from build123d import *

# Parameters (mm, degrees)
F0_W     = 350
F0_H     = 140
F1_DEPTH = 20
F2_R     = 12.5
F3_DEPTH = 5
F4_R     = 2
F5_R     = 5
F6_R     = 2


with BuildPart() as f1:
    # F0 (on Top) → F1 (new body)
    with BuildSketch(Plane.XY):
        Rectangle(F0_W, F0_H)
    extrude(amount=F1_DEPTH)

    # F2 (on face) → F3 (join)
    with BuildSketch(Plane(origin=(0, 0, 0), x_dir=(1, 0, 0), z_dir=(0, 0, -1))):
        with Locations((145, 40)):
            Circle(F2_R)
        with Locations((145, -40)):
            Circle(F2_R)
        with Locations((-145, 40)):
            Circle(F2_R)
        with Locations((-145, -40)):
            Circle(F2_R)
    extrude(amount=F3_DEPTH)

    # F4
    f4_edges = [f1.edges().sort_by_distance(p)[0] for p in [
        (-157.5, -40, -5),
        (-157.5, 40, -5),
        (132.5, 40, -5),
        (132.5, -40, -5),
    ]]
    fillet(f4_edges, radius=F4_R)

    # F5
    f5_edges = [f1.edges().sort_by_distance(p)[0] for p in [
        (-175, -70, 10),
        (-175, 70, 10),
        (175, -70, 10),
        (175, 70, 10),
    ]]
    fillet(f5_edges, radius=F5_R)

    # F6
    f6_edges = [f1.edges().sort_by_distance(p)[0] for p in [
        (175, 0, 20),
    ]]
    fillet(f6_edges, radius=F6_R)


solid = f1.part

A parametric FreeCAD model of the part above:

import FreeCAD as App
import Part
import Sketcher


def edges_at(feature, points):
    """Names of the edges that pass closest to the given points."""
    edges = feature.Shape.Edges
    near = lambda p: min(range(len(edges)), key=lambda i: edges[i].distToShape(Part.Vertex(*p))[0])
    return sorted({f"Edge{near(p) + 1}" for p in points})


def add_polygon(sketch, points):
    """Adds a closed chain of lines whose ends are joined by coincident constraints."""
    first, n = sketch.GeometryCount, len(points)
    for a, b in zip(points, points[1:] + points[:1]):
        sketch.addGeometry(Part.LineSegment(App.Vector(*a, 0), App.Vector(*b, 0)), False)
    for i in range(n):
        sketch.addConstraint(Sketcher.Constraint("Coincident", first + i, 2, first + (i + 1) % n, 1))

doc = App.newDocument("Part")
params = doc.addObject("Spreadsheet::Sheet", "Params")
for row, (alias, value) in enumerate([
    ("sketch1_width", "350 mm"),
    ("sketch1_height", "140 mm"),
    ("pad1_length", "20 mm"),
    ("sketch2_diameter", "25 mm"),
    ("pad2_length", "5 mm"),
    ("fillet_radius", "2 mm"),
    ("fillet2_radius", "5 mm"),
    ("fillet3_radius", "2 mm"),
], start=1):
    params.set(f"A{row}", alias)
    params.set(f"B{row}", "=" + value)
    params.setAlias(f"B{row}", alias)

body = doc.addObject("PartDesign::Body", "Body")

# Sketch on XY plane
sketch1 = body.newObject("Sketcher::SketchObject", "Sketch")
sketch1.AttachmentSupport = (doc.getObject("XY_Plane"), [""])
sketch1.MapMode = "FlatFace"
add_polygon(sketch1, [(-175, 70), (-175, -70), (175, -70), (175, 70)])  # lines 0-3
sketch1.addConstraint(Sketcher.Constraint("Vertical", 0))
sketch1.addConstraint(Sketcher.Constraint("Horizontal", 1))
sketch1.addConstraint(Sketcher.Constraint("Vertical", 2))
sketch1.addConstraint(Sketcher.Constraint("Horizontal", 3))
sketch1.addConstraint(Sketcher.Constraint("Symmetric", 0, 2, 2, 2, -1, 1))
sketch1.addConstraint(Sketcher.Constraint("DistanceX", 1, 1, 1, 2, 350.0))
sketch1.addConstraint(Sketcher.Constraint("DistanceY", 0, 2, 0, 1, 140.0))
sketch1.setExpression("Constraints[9]", "Params.sketch1_width")
sketch1.setExpression("Constraints[10]", "Params.sketch1_height")
pad1 = body.newObject("PartDesign::Pad", "Pad")
pad1.Profile = sketch1
pad1.setExpression("Length", "Params.pad1_length")

# Sketch on XY plane
sketch2 = body.newObject("Sketcher::SketchObject", "Sketch001")
sketch2.AttachmentSupport = (doc.getObject("XY_Plane"), [""])
sketch2.MapMode = "FlatFace"
sketch2.addGeometry(Part.Circle(App.Vector(145, -40, 0), App.Vector(0, 0, 1), 12.5), False)
sketch2.addGeometry(Part.Circle(App.Vector(145, 40, 0), App.Vector(0, 0, 1), 12.5), False)
sketch2.addGeometry(Part.Circle(App.Vector(-145, -40, 0), App.Vector(0, 0, 1), 12.5), False)
sketch2.addGeometry(Part.Circle(App.Vector(-145, 40, 0), App.Vector(0, 0, 1), 12.5), False)
sketch2.addConstraint(Sketcher.Constraint("Equal", 0, 1))
sketch2.addConstraint(Sketcher.Constraint("Equal", 1, 2))
sketch2.addConstraint(Sketcher.Constraint("Equal", 2, 3))
sketch2.addConstraint(Sketcher.Constraint("Symmetric", 1, 3, 2, 3, -1, 1))
sketch2.addConstraint(Sketcher.Constraint("Symmetric", 0, 3, 3, 3, -1, 1))
sketch2.addConstraint(Sketcher.Constraint("Symmetric", 0, 3, 2, 3, -2))
sketch2.addConstraint(Sketcher.Constraint("Diameter", 0, 25.0))
sketch2.addConstraint(Sketcher.Constraint("DistanceX", -1, 1, 0, 3, 145.0))
sketch2.addConstraint(Sketcher.Constraint("DistanceY", 0, 3, -1, 1, 40.0))
sketch2.setExpression("Constraints[6]", "Params.sketch2_diameter")
pad2 = body.newObject("PartDesign::Pad", "Pad001")
pad2.Profile = sketch2
pad2.setExpression("Length", "Params.pad2_length")
pad2.Reversed = True
doc.recompute()

fillet = body.newObject("PartDesign::Fillet", "Fillet")
fillet.Base = (pad2, edges_at(pad2, [
    (-157.5, -40, -5),
    (-157.5, 40, -5),
    (132.5, 40, -5),
    (132.5, -40, -5),
]))
fillet.setExpression("Radius", "Params.fillet_radius")
doc.recompute()

fillet2 = body.newObject("PartDesign::Fillet", "Fillet001")
fillet2.Base = (fillet, edges_at(fillet, [
    (-175, -70, 10),
    (-175, 70, 10),
    (175, -70, 10),
    (175, 70, 10),
]))
fillet2.setExpression("Radius", "Params.fillet2_radius")
doc.recompute()

fillet3 = body.newObject("PartDesign::Fillet", "Fillet002")
fillet3.Base = (fillet2, edges_at(fillet2, [(175, 0, 20)]))
fillet3.setExpression("Radius", "Params.fillet3_radius")

doc.recompute()
